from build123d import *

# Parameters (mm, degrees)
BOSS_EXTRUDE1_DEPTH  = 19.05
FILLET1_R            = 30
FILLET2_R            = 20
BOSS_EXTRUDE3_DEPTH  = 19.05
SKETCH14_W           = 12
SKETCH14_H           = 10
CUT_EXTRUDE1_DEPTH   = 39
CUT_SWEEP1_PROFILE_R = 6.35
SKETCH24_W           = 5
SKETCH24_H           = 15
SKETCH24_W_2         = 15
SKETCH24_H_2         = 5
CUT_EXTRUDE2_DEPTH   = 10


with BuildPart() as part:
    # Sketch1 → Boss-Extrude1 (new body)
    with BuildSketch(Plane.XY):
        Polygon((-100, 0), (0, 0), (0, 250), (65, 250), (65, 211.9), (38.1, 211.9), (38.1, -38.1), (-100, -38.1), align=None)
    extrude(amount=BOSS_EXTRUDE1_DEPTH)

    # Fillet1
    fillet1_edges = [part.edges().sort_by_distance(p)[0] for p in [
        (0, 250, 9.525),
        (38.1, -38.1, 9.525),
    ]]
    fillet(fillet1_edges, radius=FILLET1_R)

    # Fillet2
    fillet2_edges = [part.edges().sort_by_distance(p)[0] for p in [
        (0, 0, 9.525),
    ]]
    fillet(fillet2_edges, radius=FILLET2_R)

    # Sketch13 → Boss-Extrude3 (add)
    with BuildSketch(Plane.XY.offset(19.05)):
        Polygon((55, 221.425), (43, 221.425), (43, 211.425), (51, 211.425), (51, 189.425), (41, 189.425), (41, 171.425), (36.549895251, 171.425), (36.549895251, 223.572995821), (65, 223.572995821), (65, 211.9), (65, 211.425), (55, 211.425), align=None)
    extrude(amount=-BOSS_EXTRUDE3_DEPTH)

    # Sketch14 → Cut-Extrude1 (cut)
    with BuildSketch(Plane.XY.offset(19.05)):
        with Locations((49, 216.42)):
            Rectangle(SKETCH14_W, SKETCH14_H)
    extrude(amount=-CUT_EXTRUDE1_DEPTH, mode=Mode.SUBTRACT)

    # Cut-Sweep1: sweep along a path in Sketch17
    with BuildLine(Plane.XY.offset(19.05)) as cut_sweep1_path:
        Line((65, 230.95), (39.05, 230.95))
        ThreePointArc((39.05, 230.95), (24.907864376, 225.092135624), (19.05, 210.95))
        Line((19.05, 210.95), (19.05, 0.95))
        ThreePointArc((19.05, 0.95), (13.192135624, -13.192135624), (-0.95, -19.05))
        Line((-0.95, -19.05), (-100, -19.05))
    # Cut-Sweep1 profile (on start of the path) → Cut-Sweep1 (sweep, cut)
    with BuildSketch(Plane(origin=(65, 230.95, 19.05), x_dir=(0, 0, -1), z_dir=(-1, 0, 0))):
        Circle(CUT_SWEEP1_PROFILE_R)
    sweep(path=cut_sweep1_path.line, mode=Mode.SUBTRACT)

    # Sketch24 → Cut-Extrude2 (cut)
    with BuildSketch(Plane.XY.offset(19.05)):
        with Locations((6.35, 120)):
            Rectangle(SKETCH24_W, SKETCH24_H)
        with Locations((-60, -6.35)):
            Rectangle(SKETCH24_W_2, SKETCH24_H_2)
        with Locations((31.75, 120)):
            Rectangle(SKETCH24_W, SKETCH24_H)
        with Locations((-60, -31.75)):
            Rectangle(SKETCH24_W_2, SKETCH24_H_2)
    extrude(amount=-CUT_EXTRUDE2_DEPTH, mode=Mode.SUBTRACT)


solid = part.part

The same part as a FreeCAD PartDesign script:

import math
import FreeCAD as App
import Part
import Sketcher


def edges_at(feature, points):
    """Names of the edges that pass closest to the given points."""
    edges = feature.Shape.Edges
    near = lambda p: min(range(len(edges)), key=lambda i: edges[i].distToShape(Part.Vertex(*p))[0])
    return sorted({f"Edge{near(p) + 1}" for p in points})


def add_polygon(sketch, points):
    """Adds a closed chain of lines whose ends are joined by coincident constraints."""
    first, n = sketch.GeometryCount, len(points)
    for a, b in zip(points, points[1:] + points[:1]):
        sketch.addGeometry(Part.LineSegment(App.Vector(*a, 0), App.Vector(*b, 0)), False)
    for i in range(n):
        sketch.addConstraint(Sketcher.Constraint("Coincident", first + i, 2, first + (i + 1) % n, 1))

doc = App.newDocument("Part")
params = doc.addObject("Spreadsheet::Sheet", "Params")
for row, (alias, value) in enumerate([
    ("sketch1_width", "100 mm"),
    ("sketch1_width2", "65 mm"),
    ("sketch1_height", "250 mm"),
    ("sketch1_width3", "138.1 mm"),
    ("sketch1_height2", "38.1 mm"),
    ("pad1_length", "19.05 mm"),
    ("fillet_radius", "30 mm"),
    ("fillet2_radius", "20 mm"),
    ("sketch2_width", "12 mm"),
    ("sketch2_width2", "10 mm"),
    ("sketch2_width3", "8 mm"),
    ("sketch2_height", "18 mm"),
    ("sketch2_height2", "22 mm"),
    ("pad2_length", "19.05 mm"),
    ("sketch3_width", "12 mm"),
    ("sketch3_height", "10 mm"),
    ("pocket1_length", "39 mm"),
    ("sketch4_diameter", "12.7 mm"),
    ("sketch5_radius", "20 mm"),
    ("sketch5_height", "210 mm"),
    ("sketch5_width", "25.95 mm"),
    ("sketch6_width", "5 mm"),
    ("sketch6_width2", "15 mm"),
    ("pocket2_length", "10 mm"),
], start=1):
    params.set(f"A{row}", alias)
    params.set(f"B{row}", "=" + value)
    params.setAlias(f"B{row}", alias)

body = doc.addObject("PartDesign::Body", "Body")

# Sketch on XY plane
sketch1 = doc.addObject("Sketcher::SketchObject", "Sketch")
body.addObject(sketch1)
sketch1.AttachmentSupport = (doc.XY_Plane, [""])
sketch1.MapMode = "FlatFace"
add_polygon(sketch1, [(0, 0), (-100, 0), (-100, -38), (38, -38), (38, 212), (65, 212), (65, 250), (0, 250)])  # lines 0-7
sketch1.addConstraint([
    Sketcher.Constraint("Horizontal", 0),
    Sketcher.Constraint("Vertical", 1),
    Sketcher.Constraint("Horizontal", 2),
    Sketcher.Constraint("Vertical", 3),
    Sketcher.Constraint("Horizontal", 4),
    Sketcher.Constraint("Vertical", 5),
    Sketcher.Constraint("Horizontal", 6),
    Sketcher.Constraint("Vertical", 7),
    Sketcher.Constraint("Coincident", 7, 2, -1, 1),
    Sketcher.Constraint("Equal", 1, 5),
    Sketcher.Constraint("DistanceX", 0, 2, 0, 1, 100.0),
    Sketcher.Constraint("DistanceX", 6, 2, 6, 1, 65.0),
    Sketcher.Constraint("DistanceY", 3, 1, 3, 2, 250.0),
    Sketcher.Constraint("DistanceX", 2, 1, 2, 2, 138.1),
    Sketcher.Constraint("DistanceY", 1, 2, 1, 1, 38.1),
])
sketch1.setExpression("Constraints[18]", "Params.sketch1_width")
sketch1.setExpression("Constraints[19]", "Params.sketch1_width2")
sketch1.setExpression("Constraints[20]", "Params.sketch1_height")
sketch1.setExpression("Constraints[21]", "Params.sketch1_width3")
sketch1.setExpression("Constraints[22]", "Params.sketch1_height2")
pad1 = doc.addObject("PartDesign::Pad", "Pad")
body.addObject(pad1)
pad1.Profile = sketch1
pad1.setExpression("Length", "Params.pad1_length")
doc.recompute()

fillet = doc.addObject("PartDesign::Fillet", "Fillet")
body.addObject(fillet)
fillet.Base = (pad1, edges_at(pad1, [(0, 250, 9.525), (38.1, -38.1, 9.525)]))
fillet.setExpression("Radius", "Params.fillet_radius")
doc.recompute()

fillet2 = doc.addObject("PartDesign::Fillet", "Fillet001")
body.addObject(fillet2)
fillet2.Base = (fillet, edges_at(fillet, [(0, 0, 9.525)]))
fillet2.setExpression("Radius", "Params.fillet2_radius")

# Sketch on XY plane
sketch2 = doc.addObject("Sketcher::SketchObject", "Sketch001")
body.addObject(sketch2)
sketch2.AttachmentSupport = (doc.XY_Plane, [""])
sketch2.MapMode = "FlatFace"
sketch2.AttachmentOffset = App.Placement(App.Vector(0, 0, 19.05), App.Rotation())
add_polygon(sketch2, [(43, 221.4), (55, 221.4), (55, 211.4), (65, 211.4), (65, 223.6), (36.5, 223.6), (36.5, 171.4), (41, 171.4), (41, 189.4), (51, 189.4), (51, 211.4), (43, 211.4)])  # lines 0-11
sketch2.addConstraint([
    Sketcher.Constraint("Horizontal", 0),
    Sketcher.Constraint("Vertical", 1),
    Sketcher.Constraint("Horizontal", 2),
    Sketcher.Constraint("Vertical", 3),
    Sketcher.Constraint("Horizontal", 4),
    Sketcher.Constraint("Vertical", 5),
    Sketcher.Constraint("Horizontal", 6),
    Sketcher.Constraint("Vertical", 7),
    Sketcher.Constraint("Horizontal", 8),
    Sketcher.Constraint("Vertical", 9),
    Sketcher.Constraint("Horizontal", 10),
    Sketcher.Constraint("Vertical", 11),
    Sketcher.Constraint("Horizontal", 2, 2, 9, 2),
    Sketcher.Constraint("Equal", 2, 8),
    Sketcher.Constraint("Equal", 8, 1),
    Sketcher.Constraint("DistanceX", 0, 1, 0, 2, 12.0),
    Sketcher.Constraint("DistanceX", 2, 1, 2, 2, 10.0),
    Sketcher.Constraint("DistanceX", 10, 2, 10, 1, 8.0),
    Sketcher.Constraint("DistanceY", 7, 1, 7, 2, 18.0),
    Sketcher.Constraint("DistanceY", 9, 1, 9, 2, 22.0),
    Sketcher.Constraint("DistanceX", -1, 1, 0, 2, 55.0),
    Sketcher.Constraint("DistanceY", -1, 1, 0, 2, 221.425),
    Sketcher.Constraint("DistanceX", 4, 2, 4, 1, 28.450105),
    Sketcher.Constraint("DistanceY", 3, 1, 3, 2, 12.147996),
])
sketch2.setExpression("Constraints[27]", "Params.sketch2_width")
sketch2.setExpression("Constraints[28]", "Params.sketch2_width2")
sketch2.setExpression("Constraints[29]", "Params.sketch2_width3")
sketch2.setExpression("Constraints[30]", "Params.sketch2_height")
sketch2.setExpression("Constraints[31]", "Params.sketch2_height2")
pad2 = doc.addObject("PartDesign::Pad", "Pad001")
body.addObject(pad2)
pad2.Profile = sketch2
pad2.setExpression("Length", "Params.pad2_length")
pad2.Reversed = True

# Sketch on XY plane
sketch3 = doc.addObject("Sketcher::SketchObject", "Sketch002")
body.addObject(sketch3)
sketch3.AttachmentSupport = (doc.XY_Plane, [""])
sketch3.MapMode = "FlatFace"
sketch3.AttachmentOffset = App.Placement(App.Vector(0, 0, 19.05), App.Rotation())
add_polygon(sketch3, [(43, 221), (43, 211), (55, 211), (55, 221)])  # lines 0-3
sketch3.addConstraint([
    Sketcher.Constraint("Vertical", 0),
    Sketcher.Constraint("Horizontal", 1),
    Sketcher.Constraint("Vertical", 2),
    Sketcher.Constraint("Horizontal", 3),
    Sketcher.Constraint("DistanceX", 1, 1, 1, 2, 12.0),
    Sketcher.Constraint("DistanceY", 0, 2, 0, 1, 10.0),
    Sketcher.Constraint("DistanceX", -1, 1, 0, 2, 43.0),
    Sketcher.Constraint("DistanceY", -1, 1, 0, 2, 211.42),
])
sketch3.setExpression("Constraints[8]", "Params.sketch3_width")
sketch3.setExpression("Constraints[9]", "Params.sketch3_height")
pocket1 = doc.addObject("PartDesign::Pocket", "Pocket")
body.addObject(pocket1)
pocket1.Profile = sketch3
pocket1.setExpression("Length", "Params.pocket1_length")

# Sketch on YZ plane
sketch4 = doc.addObject("Sketcher::SketchObject", "Sketch003")
body.addObject(sketch4)
sketch4.AttachmentSupport = (doc.YZ_Plane, [""])
sketch4.MapMode = "FlatFace"
sketch4.AttachmentOffset = App.Placement(App.Vector(0, 0, 65), App.Rotation())
sketch4.addGeometry(Part.Circle(App.Vector(231, 19, 0), App.Vector(0, 0, 1), 6), False)
sketch4.addConstraint([
    Sketcher.Constraint("Diameter", 0, 12.7),
    Sketcher.Constraint("DistanceX", -1, 1, 0, 3, 230.95),
    Sketcher.Constraint("DistanceY", -1, 1, 0, 3, 19.05),
])
sketch4.setExpression("Constraints[0]", "Params.sketch4_diameter")

# Sketch on XY plane
sketch5 = doc.addObject("Sketcher::SketchObject", "Sketch004")
body.addObject(sketch5)
sketch5.AttachmentSupport = (doc.XY_Plane, [""])
sketch5.MapMode = "FlatFace"
sketch5.AttachmentOffset = App.Placement(App.Vector(0, 0, 19.05), App.Rotation())
sketch5.addGeometry([
    Part.LineSegment(App.Vector(65, 231, 0), App.Vector(39, 231, 0)),  # 0
    Part.ArcOfCircle(Part.Circle(App.Vector(39, 211, 0), App.Vector(0, 0, 1), 20), math.radians(90), math.radians(180)),  # 1
    Part.LineSegment(App.Vector(19, 211, 0), App.Vector(19, 1, 0)),  # 2
    Part.ArcOfCircle(Part.Circle(App.Vector(-1, 1, 0), App.Vector(0, 0, 1), 20), math.radians(-90), math.radians(0)),  # 3
    Part.LineSegment(App.Vector(-1, -19, 0), App.Vector(-100, -19, 0)),  # 4
], False)
sketch5.addConstraint([
    Sketcher.Constraint("Tangent", 0, 2, 1, 1),
    Sketcher.Constraint("Tangent", 1, 2, 2, 1),
    Sketcher.Constraint("Tangent", 2, 2, 3, 2),
    Sketcher.Constraint("Tangent", 3, 1, 4, 1),
    Sketcher.Constraint("Horizontal", 0),
    Sketcher.Constraint("Vertical", 2),
    Sketcher.Constraint("Horizontal", 4),
    Sketcher.Constraint("Equal", 1, 3),
    Sketcher.Constraint("Radius", 1, 20.0),
    Sketcher.Constraint("DistanceY", 2, 2, 2, 1, 210.0),
    Sketcher.Constraint("DistanceX", -1, 1, 0, 1, 65.0),
    Sketcher.Constraint("DistanceX", 4, 2, -1, 1, 100.0),
    Sketcher.Constraint("DistanceX", 0, 2, 0, 1, 25.95),
    Sketcher.Constraint("DistanceY", -1, 1, 1, 3, 210.95),
])
sketch5.setExpression("Constraints[8]", "Params.sketch5_radius")
sketch5.setExpression("Constraints[9]", "Params.sketch5_height")
sketch5.setExpression("Constraints[12]", "Params.sketch5_width")
doc.recompute()

subtractivepipe = doc.addObject("PartDesign::SubtractivePipe", "SubtractivePipe")
body.addObject(subtractivepipe)
subtractivepipe.Profile = sketch4
subtractivepipe.Spine = (sketch5, ["Edge1", "Edge2", "Edge3", "Edge4", "Edge5"])

# Sketch on XY plane
sketch6 = doc.addObject("Sketcher::SketchObject", "Sketch005")
body.addObject(sketch6)
sketch6.AttachmentSupport = (doc.XY_Plane, [""])
sketch6.MapMode = "FlatFace"
sketch6.AttachmentOffset = App.Placement(App.Vector(0, 0, 19.05), App.Rotation())
add_polygon(sketch6, [(4, 128), (4, 112), (9, 112), (9, 128)])  # lines 0-3
add_polygon(sketch6, [(-68, -4), (-68, -9), (-52, -9), (-52, -4)])  # lines 4-7
add_polygon(sketch6, [(29, 128), (29, 112), (34, 112), (34, 128)])  # lines 8-11
add_polygon(sketch6, [(-68, -29), (-68, -34), (-52, -34), (-52, -29)])  # lines 12-15
sketch6.addConstraint([
    Sketcher.Constraint("Vertical", 0),
    Sketcher.Constraint("Horizontal", 1),
    Sketcher.Constraint("Vertical", 2),
    Sketcher.Constraint("Horizontal", 3),
    Sketcher.Constraint("Vertical", 4),
    Sketcher.Constraint("Horizontal", 5),
    Sketcher.Constraint("Vertical", 6),
    Sketcher.Constraint("Horizontal", 7),
    Sketcher.Constraint("Vertical", 8),
    Sketcher.Constraint("Horizontal", 9),
    Sketcher.Constraint("Vertical", 10),
    Sketcher.Constraint("Horizontal", 11),
    Sketcher.Constraint("Vertical", 12),
    Sketcher.Constraint("Horizontal", 13),
    Sketcher.Constraint("Vertical", 14),
    Sketcher.Constraint("Horizontal", 15),
    Sketcher.Constraint("Horizontal", 1, 2, 8, 2),
    Sketcher.Constraint("Horizontal", 3, 2, 10, 2),
    Sketcher.Constraint("Vertical", 7, 2, 12, 2),
    Sketcher.Constraint("Vertical", 6, 2, 13, 2),
    Sketcher.Constraint("Equal", 3, 9),
    Sketcher.Constraint("Equal", 15, 0),
    Sketcher.Constraint("Equal", 11, 4),
    Sketcher.Constraint("Equal", 6, 12),
    Sketcher.Constraint("DistanceX", 1, 1, 1, 2, 5.0),
    Sketcher.Constraint("DistanceX", 5, 1, 5, 2, 15.0),
    Sketcher.Constraint("DistanceY", -1, 1, 0, 2, 112.5),
    Sketcher.Constraint("DistanceX", 4, 2, -1, 1, 67.5),
    Sketcher.Constraint("DistanceX", 1, 2, 8, 2, 20.4),
    Sketcher.Constraint("DistanceY", 12, 2, 4, 2, 25.4),
    Sketcher.Constraint("DistanceX", -1, 1, 0, 2, 3.85),
    Sketcher.Constraint("DistanceY", 4, 2, -1, 1, 8.85),
])
sketch6.setExpression("Constraints[40]", "Params.sketch6_width")
sketch6.setExpression("Constraints[41]", "Params.sketch6_width2")
pocket2 = doc.addObject("PartDesign::Pocket", "Pocket001")
body.addObject(pocket2)
pocket2.Profile = sketch6
pocket2.setExpression("Length", "Params.pocket2_length")

doc.recompute()
